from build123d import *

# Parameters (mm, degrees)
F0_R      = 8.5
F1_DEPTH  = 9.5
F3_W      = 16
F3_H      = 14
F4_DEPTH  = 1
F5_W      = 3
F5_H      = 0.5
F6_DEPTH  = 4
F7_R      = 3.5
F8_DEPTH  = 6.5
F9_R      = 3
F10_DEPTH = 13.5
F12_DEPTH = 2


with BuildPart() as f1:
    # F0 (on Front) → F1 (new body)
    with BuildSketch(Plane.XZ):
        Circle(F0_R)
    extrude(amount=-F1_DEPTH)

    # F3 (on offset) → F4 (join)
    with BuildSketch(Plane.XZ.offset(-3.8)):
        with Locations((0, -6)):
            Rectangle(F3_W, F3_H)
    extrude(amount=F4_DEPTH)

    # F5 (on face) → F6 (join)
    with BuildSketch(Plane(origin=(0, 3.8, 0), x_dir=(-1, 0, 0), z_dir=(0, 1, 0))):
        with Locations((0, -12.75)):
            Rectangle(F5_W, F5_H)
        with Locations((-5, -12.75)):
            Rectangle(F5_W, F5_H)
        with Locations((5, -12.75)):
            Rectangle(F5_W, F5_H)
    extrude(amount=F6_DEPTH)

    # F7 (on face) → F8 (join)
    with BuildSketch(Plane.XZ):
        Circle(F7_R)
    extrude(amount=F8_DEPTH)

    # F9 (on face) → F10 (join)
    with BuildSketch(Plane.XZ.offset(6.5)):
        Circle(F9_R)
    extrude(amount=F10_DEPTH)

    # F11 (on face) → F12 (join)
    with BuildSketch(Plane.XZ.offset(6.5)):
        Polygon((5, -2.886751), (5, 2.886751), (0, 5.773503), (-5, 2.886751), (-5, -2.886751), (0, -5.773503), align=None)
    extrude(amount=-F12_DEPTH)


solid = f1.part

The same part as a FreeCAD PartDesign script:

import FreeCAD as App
import Part
import Sketcher

V = App.Vector
Q = App.Units.Quantity

doc = App.newDocument("Part")
body = doc.addObject("PartDesign::Body", "Body")

sketch1 = body.newObject("Sketcher::SketchObject", "Sketch")
sketch1.AttachmentSupport = (doc.getObject("XZ_Plane"), [""])
sketch1.MapMode = "FlatFace"
sketch1.addGeometry(Part.Circle(V(0, 0, 0), V(0, 0, 1), 8.5), False)
sketch1.addConstraint(Sketcher.Constraint("Coincident", 0, 3, -1, 1))
sketch1.addConstraint(Sketcher.Constraint("Diameter", 0, 17.0))
pad1 = body.newObject("PartDesign::Pad", "Pad")
pad1.Profile = sketch1
pad1.Length = 9.5
pad1.Reversed = True

sketch2 = body.newObject("Sketcher::SketchObject", "Sketch001")
sketch2.AttachmentSupport = (doc.getObject("XZ_Plane"), [""])
sketch2.MapMode = "FlatFace"
sketch2.AttachmentOffset = App.Placement(V(0, 0, -3.8), App.Rotation())
sketch2.addGeometry(Part.LineSegment(V(-8, 1, 0), V(-8, -13, 0)), False)
sketch2.addGeometry(Part.LineSegment(V(-8, -13, 0), V(8, -13, 0)), False)
sketch2.addGeometry(Part.LineSegment(V(8, -13, 0), V(8, 1, 0)), False)
sketch2.addGeometry(Part.LineSegment(V(8, 1, 0), V(-8, 1, 0)), False)
sketch2.addConstraint(Sketcher.Constraint("Coincident", 0, 2, 1, 1))
sketch2.addConstraint(Sketcher.Constraint("Coincident", 1, 2, 2, 1))
sketch2.addConstraint(Sketcher.Constraint("Coincident", 2, 2, 3, 1))
sketch2.addConstraint(Sketcher.Constraint("Coincident", 3, 2, 0, 1))
sketch2.addConstraint(Sketcher.Constraint("Vertical", 0))
sketch2.addConstraint(Sketcher.Constraint("Horizontal", 1))
sketch2.addConstraint(Sketcher.Constraint("Vertical", 2))
sketch2.addConstraint(Sketcher.Constraint("Horizontal", 3))
sketch2.addConstraint(Sketcher.Constraint("DistanceX", 1, 1, 1, 2, 16.0))
sketch2.addConstraint(Sketcher.Constraint("DistanceY", 0, 2, 0, 1, 14.0))
sketch2.addConstraint(Sketcher.Constraint("DistanceX", 0, 2, -1, 1, 8.0))
sketch2.addConstraint(Sketcher.Constraint("DistanceY", 0, 2, -1, 1, 13.0))
pad2 = body.newObject("PartDesign::Pad", "Pad001")
pad2.Profile = sketch2
pad2.Length = 1

sketch3 = body.newObject("Sketcher::SketchObject", "Sketch002")
sketch3.AttachmentSupport = (doc.getObject("XZ_Plane"), [""])
sketch3.MapMode = "FlatFace"
sketch3.AttachmentOffset = App.Placement(V(0, 0, -3.8), App.Rotation())
sketch3.addGeometry(Part.LineSegment(V(1.5, -12.5, 0), V(1.5, -13, 0)), False)
sketch3.addGeometry(Part.LineSegment(V(1.5, -13, 0), V(-1.5, -13, 0)), False)
sketch3.addGeometry(Part.LineSegment(V(-1.5, -13, 0), V(-1.5, -12.5, 0)), False)
sketch3.addGeometry(Part.LineSegment(V(-1.5, -12.5, 0), V(1.5, -12.5, 0)), False)
sketch3.addGeometry(Part.LineSegment(V(6.5, -12.5, 0), V(6.5, -13, 0)), False)
sketch3.addGeometry(Part.LineSegment(V(6.5, -13, 0), V(3.5, -13, 0)), False)
sketch3.addGeometry(Part.LineSegment(V(3.5, -13, 0), V(3.5, -12.5, 0)), False)
sketch3.addGeometry(Part.LineSegment(V(3.5, -12.5, 0), V(6.5, -12.5, 0)), False)
sketch3.addGeometry(Part.LineSegment(V(-3.5, -12.5, 0), V(-3.5, -13, 0)), False)
sketch3.addGeometry(Part.LineSegment(V(-3.5, -13, 0), V(-6.5, -13, 0)), False)
sketch3.addGeometry(Part.LineSegment(V(-6.5, -13, 0), V(-6.5, -12.5, 0)), False)
sketch3.addGeometry(Part.LineSegment(V(-6.5, -12.5, 0), V(-3.5, -12.5, 0)), False)
sketch3.addConstraint(Sketcher.Constraint("Coincident", 0, 2, 1, 1))
sketch3.addConstraint(Sketcher.Constraint("Coincident", 1, 2, 2, 1))
sketch3.addConstraint(Sketcher.Constraint("Coincident", 2, 2, 3, 1))
sketch3.addConstraint(Sketcher.Constraint("Coincident", 3, 2, 0, 1))
sketch3.addConstraint(Sketcher.Constraint("Coincident", 4, 2, 5, 1))
sketch3.addConstraint(Sketcher.Constraint("Coincident", 5, 2, 6, 1))
sketch3.addConstraint(Sketcher.Constraint("Coincident", 6, 2, 7, 1))
sketch3.addConstraint(Sketcher.Constraint("Coincident", 7, 2, 4, 1))
sketch3.addConstraint(Sketcher.Constraint("Coincident", 8, 2, 9, 1))
sketch3.addConstraint(Sketcher.Constraint("Coincident", 9, 2, 10, 1))
sketch3.addConstraint(Sketcher.Constraint("Coincident", 10, 2, 11, 1))
sketch3.addConstraint(Sketcher.Constraint("Coincident", 11, 2, 8, 1))
sketch3.addConstraint(Sketcher.Constraint("Vertical", 0))
sketch3.addConstraint(Sketcher.Constraint("Horizontal", 1))
sketch3.addConstraint(Sketcher.Constraint("Vertical", 2))
sketch3.addConstraint(Sketcher.Constraint("Horizontal", 3))
sketch3.addConstraint(Sketcher.Constraint("Vertical", 4))
sketch3.addConstraint(Sketcher.Constraint("Horizontal", 5))
sketch3.addConstraint(Sketcher.Constraint("Vertical", 6))
sketch3.addConstraint(Sketcher.Constraint("Horizontal", 7))
sketch3.addConstraint(Sketcher.Constraint("Vertical", 8))
sketch3.addConstraint(Sketcher.Constraint("Horizontal", 9))
sketch3.addConstraint(Sketcher.Constraint("Vertical", 10))
sketch3.addConstraint(Sketcher.Constraint("Horizontal", 11))
sketch3.addConstraint(Sketcher.Constraint("Symmetric", 5, 2, 8, 2, -2))
sketch3.addConstraint(Sketcher.Constraint("Symmetric", 7, 2, 10, 2, -2))
sketch3.addConstraint(Sketcher.Constraint("Horizontal", 1, 2, 4, 2))
sketch3.addConstraint(Sketcher.Constraint("Horizontal", 3, 2, 6, 2))
sketch3.addConstraint(Sketcher.Constraint("Equal", 3, 5))
sketch3.addConstraint(Sketcher.Constraint("DistanceX", 1, 2, 1, 1, 3.0))
sketch3.addConstraint(Sketcher.Constraint("DistanceY", 0, 2, 0, 1, 0.5))
sketch3.addConstraint(Sketcher.Constraint("DistanceY", 0, 2, -1, 1, 13.0))
sketch3.addConstraint(Sketcher.Constraint("DistanceX", 0, 2, 4, 2, 5.0))
sketch3.addConstraint(Sketcher.Constraint("DistanceX", 8, 2, 1, 2, 2.0))
pad3 = body.newObject("PartDesign::Pad", "Pad002")
pad3.Profile = sketch3
pad3.Length = 4
pad3.Reversed = True

sketch4 = body.newObject("Sketcher::SketchObject", "Sketch003")
sketch4.AttachmentSupport = (doc.getObject("XZ_Plane"), [""])
sketch4.MapMode = "FlatFace"
sketch4.addGeometry(Part.Circle(V(0, 0, 0), V(0, 0, 1), 3.5), False)
sketch4.addConstraint(Sketcher.Constraint("Coincident", 0, 3, -1, 1))
sketch4.addConstraint(Sketcher.Constraint("Diameter", 0, 7.0))
pad4 = body.newObject("PartDesign::Pad", "Pad003")
pad4.Profile = sketch4
pad4.Length = 6.5

sketch5 = body.newObject("Sketcher::SketchObject", "Sketch004")
sketch5.AttachmentSupport = (doc.getObject("XZ_Plane"), [""])
sketch5.MapMode = "FlatFace"
sketch5.AttachmentOffset = App.Placement(V(0, 0, 6.5), App.Rotation())
sketch5.addGeometry(Part.Circle(V(0, 0, 0), V(0, 0, 1), 3), False)
sketch5.addConstraint(Sketcher.Constraint("Coincident", 0, 3, -1, 1))
sketch5.addConstraint(Sketcher.Constraint("Diameter", 0, 6.0))
pad5 = body.newObject("PartDesign::Pad", "Pad004")
pad5.Profile = sketch5
pad5.Length = 13.5

sketch6 = body.newObject("Sketcher::SketchObject", "Sketch005")
sketch6.AttachmentSupport = (doc.getObject("XZ_Plane"), [""])
sketch6.MapMode = "FlatFace"
sketch6.AttachmentOffset = App.Placement(V(0, 0, 6.5), App.Rotation())
sketch6.addGeometry(Part.LineSegment(V(5, -2.886751, 0), V(5, 2.886751, 0)), False)
sketch6.addGeometry(Part.LineSegment(V(5, 2.886751, 0), V(0, 5.773503, 0)), False)
sketch6.addGeometry(Part.LineSegment(V(0, 5.773503, 0), V(-5, 2.886751, 0)), False)
sketch6.addGeometry(Part.LineSegment(V(-5, 2.886751, 0), V(-5, -2.886751, 0)), False)
sketch6.addGeometry(Part.LineSegment(V(-5, -2.886751, 0), V(0, -5.773503, 0)), False)
sketch6.addGeometry(Part.LineSegment(V(0, -5.773503, 0), V(5, -2.886751, 0)), False)
sketch6.addConstraint(Sketcher.Constraint("Coincident", 0, 2, 1, 1))
sketch6.addConstraint(Sketcher.Constraint("Coincident", 1, 2, 2, 1))
sketch6.addConstraint(Sketcher.Constraint("Coincident", 2, 2, 3, 1))
sketch6.addConstraint(Sketcher.Constraint("Coincident", 3, 2, 4, 1))
sketch6.addConstraint(Sketcher.Constraint("Coincident", 4, 2, 5, 1))
sketch6.addConstraint(Sketcher.Constraint("Coincident", 5, 2, 0, 1))
sketch6.addConstraint(Sketcher.Constraint("Vertical", 0))
sketch6.addConstraint(Sketcher.Constraint("Vertical", 3))
sketch6.addConstraint(Sketcher.Constraint("Symmetric", 0, 2, 3, 2, -1, 1))
sketch6.addConstraint(Sketcher.Constraint("Symmetric", 1, 2, 4, 2, -1, 1))
sketch6.addConstraint(Sketcher.Constraint("PointOnObject", 1, 2, -2))
sketch6.addConstraint(Sketcher.Constraint("Parallel", 2, 5))
sketch6.addConstraint(Sketcher.Constraint("Horizontal", 0, 2, 2, 2))
sketch6.addConstraint(Sketcher.Constraint("Angle", 1, Q("149.999994 deg")))
sketch6.addConstraint(Sketcher.Constraint("DistanceX", -1, 1, 0, 2, 5.0))
sketch6.addConstraint(Sketcher.Constraint("DistanceY", 0, 1, 0, 2, 5.773502))
pad6 = body.newObject("PartDesign::Pad", "Pad005")
pad6.Profile = sketch6
pad6.Length = 2
pad6.Reversed = True

doc.recompute()
